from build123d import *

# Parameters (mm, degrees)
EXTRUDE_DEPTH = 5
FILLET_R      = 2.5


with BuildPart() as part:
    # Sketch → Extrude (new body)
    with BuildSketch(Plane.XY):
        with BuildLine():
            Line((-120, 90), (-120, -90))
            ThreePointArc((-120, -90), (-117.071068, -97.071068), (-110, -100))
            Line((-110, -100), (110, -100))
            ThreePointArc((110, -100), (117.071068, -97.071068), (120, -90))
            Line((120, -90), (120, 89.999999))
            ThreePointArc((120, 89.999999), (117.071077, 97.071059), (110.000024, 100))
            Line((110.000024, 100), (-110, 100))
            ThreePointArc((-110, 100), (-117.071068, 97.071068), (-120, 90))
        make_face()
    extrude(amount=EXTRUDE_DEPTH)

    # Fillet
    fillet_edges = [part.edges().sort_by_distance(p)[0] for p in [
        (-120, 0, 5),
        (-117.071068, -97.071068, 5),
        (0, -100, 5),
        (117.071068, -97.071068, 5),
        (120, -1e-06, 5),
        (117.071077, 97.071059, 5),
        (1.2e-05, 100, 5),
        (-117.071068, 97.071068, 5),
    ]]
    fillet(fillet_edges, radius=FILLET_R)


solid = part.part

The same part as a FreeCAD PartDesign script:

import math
import FreeCAD as App
import Part
import Sketcher
from FreeCAD import Vector
Q = App.Units.Quantity


def edges_at(feature, points):
    """Names of the edges that pass closest to the given points."""
    edges = feature.Shape.Edges
    near = lambda p: min(range(len(edges)), key=lambda i: edges[i].distToShape(Part.Vertex(*p))[0])
    return sorted({f"Edge{near(p) + 1}" for p in points})

doc = App.newDocument("Part")
params = doc.addObject("Spreadsheet::Sheet", "Params")
for row, (alias, value) in enumerate([
    ("sketch1_radius", "9.999999 mm"),
    ("sketch1_width", "220 mm"),
    ("sketch1_height", "180 mm"),
    ("pad1_length", "5 mm"),
    ("fillet_radius", "2.5 mm"),
], start=1):
    params.set(f"A{row}", alias)
    params.set(f"B{row}", "=" + value)
    params.setAlias(f"B{row}", alias)

body = doc.addObject("PartDesign::Body", "Body")

# Sketch on XY plane
sketch1 = doc.addObject("Sketcher::SketchObject", "Sketch")
body.addObject(sketch1)
sketch1.AttachmentSupport = (doc.XY_Plane, [""])
sketch1.MapMode = "FlatFace"
sketch1.addGeometry([
    Part.LineSegment(Vector(-120, 90, 0), Vector(-120, -90, 0)),  # 0
    Part.ArcOfCircle(Part.Circle(Vector(-110.000001, -90.000001, 0), Vector(0, 0, 1), 9.999999), math.radians(179.999996), math.radians(270.000004)),  # 1
    Part.LineSegment(Vector(-110, -100, 0), Vector(110, -100, 0)),  # 2
    Part.ArcOfCircle(Part.Circle(Vector(110.000001, -90.000001, 0), Vector(0, 0, 1), 9.999999), math.radians(-90.000004), math.radians(0.000004)),  # 3
    Part.LineSegment(Vector(120, -90, 0), Vector(120, 89.999999, 0)),  # 4
    Part.ArcOfCircle(Part.Circle(Vector(110.000001, 90.000001, 0), Vector(0, 0, 1), 9.999999), math.radians(-0.000009), math.radians(89.999866)),  # 5
    Part.LineSegment(Vector(110.000024, 100, 0), Vector(-110, 100, 0)),  # 6
    Part.ArcOfCircle(Part.Circle(Vector(-110.000001, 90.000001, 0), Vector(0, 0, 1), 9.999999), math.radians(89.999996), math.radians(180.000004)),  # 7
], False)
sketch1.addConstraint([
    Sketcher.Constraint("Tangent", 0, 2, 1, 1),
    Sketcher.Constraint("Tangent", 1, 2, 2, 1),
    Sketcher.Constraint("Tangent", 2, 2, 3, 1),
    Sketcher.Constraint("Tangent", 3, 2, 4, 1),
    Sketcher.Constraint("Tangent", 4, 2, 5, 1),
    Sketcher.Constraint("Coincident", 5, 2, 6, 1),
    Sketcher.Constraint("Tangent", 6, 2, 7, 1),
    Sketcher.Constraint("Tangent", 7, 2, 0, 1),
    Sketcher.Constraint("Vertical", 0),
    Sketcher.Constraint("Horizontal", 2),
    Sketcher.Constraint("Vertical", 4),
    Sketcher.Constraint("Horizontal", 6),
    Sketcher.Constraint("Equal", 1, 3),
    Sketcher.Constraint("Equal", 3, 5),
    Sketcher.Constraint("Equal", 5, 7),
    Sketcher.Constraint("Symmetric", 1, 3, 5, 3, -1, 1),
    Sketcher.Constraint("Radius", 1, Q("9.999999 mm")),
    Sketcher.Constraint("DistanceX", 2, 1, 2, 2, Q("220 mm")),
    Sketcher.Constraint("DistanceY", 0, 2, 0, 1, Q("180 mm")),
    Sketcher.Constraint("DistanceX", 6, 2, 6, 1, Q("220.000024 mm")),
])
sketch1.setExpression("Constraints[16]", "Params.sketch1_radius")
sketch1.setExpression("Constraints[17]", "Params.sketch1_width")
sketch1.setExpression("Constraints[18]", "Params.sketch1_height")
pad1 = doc.addObject("PartDesign::Pad", "Pad")
body.addObject(pad1)
pad1.Profile = sketch1
pad1.setExpression("Length", "Params.pad1_length")
doc.recompute()

fillet = doc.addObject("PartDesign::Fillet", "Fillet")
body.addObject(fillet)
fillet.Base = (pad1, edges_at(pad1, [
    (-120, 0, 5),
    (-117.071, -97.071, 5),
    (0, -100, 5),
    (117.071, -97.071, 5),
    (120, 0, 5),
    (117.071, 97.071, 5),
    (0, 100, 5),
    (-117.071, 97.071, 5),
]))
fillet.setExpression("Radius", "Params.fillet_radius")

doc.recompute()
